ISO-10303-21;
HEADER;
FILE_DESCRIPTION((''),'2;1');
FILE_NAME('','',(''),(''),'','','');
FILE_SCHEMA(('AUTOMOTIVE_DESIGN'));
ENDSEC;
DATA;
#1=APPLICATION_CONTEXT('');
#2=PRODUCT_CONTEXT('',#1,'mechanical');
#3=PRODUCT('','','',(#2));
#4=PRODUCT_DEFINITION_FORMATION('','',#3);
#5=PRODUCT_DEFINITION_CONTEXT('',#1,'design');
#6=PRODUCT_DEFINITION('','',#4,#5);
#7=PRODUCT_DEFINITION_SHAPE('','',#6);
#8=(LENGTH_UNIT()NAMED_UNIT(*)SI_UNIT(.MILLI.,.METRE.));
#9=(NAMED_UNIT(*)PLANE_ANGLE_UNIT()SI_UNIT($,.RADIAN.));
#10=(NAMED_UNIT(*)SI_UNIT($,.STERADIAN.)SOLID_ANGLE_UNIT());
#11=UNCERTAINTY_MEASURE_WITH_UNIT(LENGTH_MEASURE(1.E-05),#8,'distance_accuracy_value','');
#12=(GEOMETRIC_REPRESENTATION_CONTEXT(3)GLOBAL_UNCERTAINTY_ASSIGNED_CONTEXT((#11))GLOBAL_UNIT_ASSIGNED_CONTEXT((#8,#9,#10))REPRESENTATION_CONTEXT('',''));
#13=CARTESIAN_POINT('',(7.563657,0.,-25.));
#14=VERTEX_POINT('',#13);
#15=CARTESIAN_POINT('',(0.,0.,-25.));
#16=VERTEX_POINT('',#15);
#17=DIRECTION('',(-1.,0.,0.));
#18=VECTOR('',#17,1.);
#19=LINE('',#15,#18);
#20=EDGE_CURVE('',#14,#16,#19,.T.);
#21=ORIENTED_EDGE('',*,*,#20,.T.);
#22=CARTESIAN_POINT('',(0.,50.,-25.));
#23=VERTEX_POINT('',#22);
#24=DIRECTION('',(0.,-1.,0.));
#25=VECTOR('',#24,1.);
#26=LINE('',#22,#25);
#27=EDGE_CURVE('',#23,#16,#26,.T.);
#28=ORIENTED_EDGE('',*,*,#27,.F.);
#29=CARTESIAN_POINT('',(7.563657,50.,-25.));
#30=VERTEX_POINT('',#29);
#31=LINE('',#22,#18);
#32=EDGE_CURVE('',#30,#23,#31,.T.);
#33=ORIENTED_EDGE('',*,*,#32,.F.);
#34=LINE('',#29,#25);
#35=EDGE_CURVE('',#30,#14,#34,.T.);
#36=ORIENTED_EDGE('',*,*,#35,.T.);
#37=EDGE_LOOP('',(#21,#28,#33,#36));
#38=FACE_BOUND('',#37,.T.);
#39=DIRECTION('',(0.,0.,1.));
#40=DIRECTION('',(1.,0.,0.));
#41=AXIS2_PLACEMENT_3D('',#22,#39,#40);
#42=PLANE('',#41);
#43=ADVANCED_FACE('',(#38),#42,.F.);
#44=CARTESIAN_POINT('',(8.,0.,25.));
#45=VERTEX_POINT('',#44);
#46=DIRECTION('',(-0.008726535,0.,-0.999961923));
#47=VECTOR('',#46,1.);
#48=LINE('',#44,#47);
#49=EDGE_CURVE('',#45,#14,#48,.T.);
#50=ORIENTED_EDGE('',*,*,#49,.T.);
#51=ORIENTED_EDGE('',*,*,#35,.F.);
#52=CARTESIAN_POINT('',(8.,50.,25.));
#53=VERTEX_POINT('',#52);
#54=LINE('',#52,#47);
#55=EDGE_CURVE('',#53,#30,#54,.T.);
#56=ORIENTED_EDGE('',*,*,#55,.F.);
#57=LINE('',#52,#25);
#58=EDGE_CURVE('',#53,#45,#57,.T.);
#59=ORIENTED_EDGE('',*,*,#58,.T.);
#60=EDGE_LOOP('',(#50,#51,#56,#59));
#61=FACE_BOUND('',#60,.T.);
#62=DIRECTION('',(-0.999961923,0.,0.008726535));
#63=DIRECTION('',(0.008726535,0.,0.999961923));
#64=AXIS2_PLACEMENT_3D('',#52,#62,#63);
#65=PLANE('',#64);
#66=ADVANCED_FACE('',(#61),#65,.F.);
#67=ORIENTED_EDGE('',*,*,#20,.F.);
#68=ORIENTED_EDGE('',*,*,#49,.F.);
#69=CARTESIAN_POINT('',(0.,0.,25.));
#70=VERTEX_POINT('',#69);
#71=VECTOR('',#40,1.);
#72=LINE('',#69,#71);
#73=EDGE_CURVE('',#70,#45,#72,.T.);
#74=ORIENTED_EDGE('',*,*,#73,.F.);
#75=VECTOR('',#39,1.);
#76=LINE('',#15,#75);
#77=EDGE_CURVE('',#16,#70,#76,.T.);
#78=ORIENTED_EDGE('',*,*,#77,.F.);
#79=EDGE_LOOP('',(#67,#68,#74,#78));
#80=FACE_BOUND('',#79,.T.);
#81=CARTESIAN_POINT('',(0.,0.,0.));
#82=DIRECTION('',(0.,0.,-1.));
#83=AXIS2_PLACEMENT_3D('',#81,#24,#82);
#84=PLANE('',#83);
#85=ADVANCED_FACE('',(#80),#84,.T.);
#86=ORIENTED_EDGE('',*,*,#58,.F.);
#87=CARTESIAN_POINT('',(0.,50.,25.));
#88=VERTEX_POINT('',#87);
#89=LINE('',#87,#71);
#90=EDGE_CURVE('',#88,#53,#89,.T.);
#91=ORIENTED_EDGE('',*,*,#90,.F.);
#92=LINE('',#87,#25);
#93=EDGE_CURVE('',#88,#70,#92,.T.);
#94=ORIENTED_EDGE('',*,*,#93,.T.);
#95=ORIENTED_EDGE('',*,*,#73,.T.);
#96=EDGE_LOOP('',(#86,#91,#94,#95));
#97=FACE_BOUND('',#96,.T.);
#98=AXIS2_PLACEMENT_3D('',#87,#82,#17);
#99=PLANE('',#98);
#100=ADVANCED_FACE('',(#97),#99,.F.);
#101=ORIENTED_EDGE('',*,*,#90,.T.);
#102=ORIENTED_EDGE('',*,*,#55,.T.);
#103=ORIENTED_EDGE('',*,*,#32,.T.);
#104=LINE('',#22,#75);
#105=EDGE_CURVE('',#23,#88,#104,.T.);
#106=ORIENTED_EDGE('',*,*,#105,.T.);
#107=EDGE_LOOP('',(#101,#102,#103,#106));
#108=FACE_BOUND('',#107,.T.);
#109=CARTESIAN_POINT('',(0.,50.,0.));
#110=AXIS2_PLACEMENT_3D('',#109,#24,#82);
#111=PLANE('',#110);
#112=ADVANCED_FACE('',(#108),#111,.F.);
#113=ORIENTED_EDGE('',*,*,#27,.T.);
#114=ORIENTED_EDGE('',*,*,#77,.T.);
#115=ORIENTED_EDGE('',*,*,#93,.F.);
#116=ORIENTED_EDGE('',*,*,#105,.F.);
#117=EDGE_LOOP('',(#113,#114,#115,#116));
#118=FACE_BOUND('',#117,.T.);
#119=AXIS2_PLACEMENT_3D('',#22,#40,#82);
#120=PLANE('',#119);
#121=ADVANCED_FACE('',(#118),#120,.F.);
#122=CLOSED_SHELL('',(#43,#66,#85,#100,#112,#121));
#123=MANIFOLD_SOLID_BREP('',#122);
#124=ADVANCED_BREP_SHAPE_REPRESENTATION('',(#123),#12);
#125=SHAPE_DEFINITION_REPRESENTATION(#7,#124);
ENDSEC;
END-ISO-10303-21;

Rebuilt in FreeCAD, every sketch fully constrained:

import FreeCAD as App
import Part
import Sketcher

V = App.Vector
Q = App.Units.Quantity


def add_polygon(sketch, points):
    """Adds a closed chain of lines whose ends are joined by coincident constraints."""
    first, n = sketch.GeometryCount, len(points)
    for a, b in zip(points, points[1:] + points[:1]):
        sketch.addGeometry(Part.LineSegment(App.Vector(*a, 0), App.Vector(*b, 0)), False)
    for i in range(n):
        sketch.addConstraint(Sketcher.Constraint("Coincident", first + i, 2, first + (i + 1) % n, 1))

doc = App.newDocument("Part")
params = doc.addObject("Spreadsheet::Sheet", "Params")
for row, (alias, value) in enumerate([
    ("sketch1_width", "8 mm"),
    ("sketch1_height", "50 mm"),
    ("pad1_length", "50 mm"),
], start=1):
    params.set(f"A{row}", alias)
    params.set(f"B{row}", "=" + value)
    params.setAlias(f"B{row}", alias)

body = doc.addObject("PartDesign::Body", "Body")

# Sketch on XZ plane
sketch1 = body.newObject("Sketcher::SketchObject", "Sketch")
sketch1.AttachmentSupport = (doc.getObject("XZ_Plane"), [""])
sketch1.MapMode = "FlatFace"
add_polygon(sketch1, [(0, -25), (0, 25), (8, 25), (8, -25)])  # lines 0-3
sketch1.addConstraint([
    Sketcher.Constraint("Vertical", 0),
    Sketcher.Constraint("Horizontal", 1),
    Sketcher.Constraint("Horizontal", 3),
    Sketcher.Constraint("Symmetric", 0, 2, 3, 2, -1, 1),
    Sketcher.Constraint("DistanceX", 1, 1, 1, 2, 8.0),
    Sketcher.Constraint("DistanceY", 0, 1, 0, 2, 50.0),
    Sketcher.Constraint("Angle", 2, Q("-90.5 deg")),
])
sketch1.setExpression("Constraints[8]", "Params.sketch1_width")
sketch1.setExpression("Constraints[9]", "Params.sketch1_height")
pad1 = body.newObject("PartDesign::Pad", "Pad")
pad1.Profile = sketch1
pad1.setExpression("Length", "Params.pad1_length")
pad1.Reversed = True

doc.recompute()
